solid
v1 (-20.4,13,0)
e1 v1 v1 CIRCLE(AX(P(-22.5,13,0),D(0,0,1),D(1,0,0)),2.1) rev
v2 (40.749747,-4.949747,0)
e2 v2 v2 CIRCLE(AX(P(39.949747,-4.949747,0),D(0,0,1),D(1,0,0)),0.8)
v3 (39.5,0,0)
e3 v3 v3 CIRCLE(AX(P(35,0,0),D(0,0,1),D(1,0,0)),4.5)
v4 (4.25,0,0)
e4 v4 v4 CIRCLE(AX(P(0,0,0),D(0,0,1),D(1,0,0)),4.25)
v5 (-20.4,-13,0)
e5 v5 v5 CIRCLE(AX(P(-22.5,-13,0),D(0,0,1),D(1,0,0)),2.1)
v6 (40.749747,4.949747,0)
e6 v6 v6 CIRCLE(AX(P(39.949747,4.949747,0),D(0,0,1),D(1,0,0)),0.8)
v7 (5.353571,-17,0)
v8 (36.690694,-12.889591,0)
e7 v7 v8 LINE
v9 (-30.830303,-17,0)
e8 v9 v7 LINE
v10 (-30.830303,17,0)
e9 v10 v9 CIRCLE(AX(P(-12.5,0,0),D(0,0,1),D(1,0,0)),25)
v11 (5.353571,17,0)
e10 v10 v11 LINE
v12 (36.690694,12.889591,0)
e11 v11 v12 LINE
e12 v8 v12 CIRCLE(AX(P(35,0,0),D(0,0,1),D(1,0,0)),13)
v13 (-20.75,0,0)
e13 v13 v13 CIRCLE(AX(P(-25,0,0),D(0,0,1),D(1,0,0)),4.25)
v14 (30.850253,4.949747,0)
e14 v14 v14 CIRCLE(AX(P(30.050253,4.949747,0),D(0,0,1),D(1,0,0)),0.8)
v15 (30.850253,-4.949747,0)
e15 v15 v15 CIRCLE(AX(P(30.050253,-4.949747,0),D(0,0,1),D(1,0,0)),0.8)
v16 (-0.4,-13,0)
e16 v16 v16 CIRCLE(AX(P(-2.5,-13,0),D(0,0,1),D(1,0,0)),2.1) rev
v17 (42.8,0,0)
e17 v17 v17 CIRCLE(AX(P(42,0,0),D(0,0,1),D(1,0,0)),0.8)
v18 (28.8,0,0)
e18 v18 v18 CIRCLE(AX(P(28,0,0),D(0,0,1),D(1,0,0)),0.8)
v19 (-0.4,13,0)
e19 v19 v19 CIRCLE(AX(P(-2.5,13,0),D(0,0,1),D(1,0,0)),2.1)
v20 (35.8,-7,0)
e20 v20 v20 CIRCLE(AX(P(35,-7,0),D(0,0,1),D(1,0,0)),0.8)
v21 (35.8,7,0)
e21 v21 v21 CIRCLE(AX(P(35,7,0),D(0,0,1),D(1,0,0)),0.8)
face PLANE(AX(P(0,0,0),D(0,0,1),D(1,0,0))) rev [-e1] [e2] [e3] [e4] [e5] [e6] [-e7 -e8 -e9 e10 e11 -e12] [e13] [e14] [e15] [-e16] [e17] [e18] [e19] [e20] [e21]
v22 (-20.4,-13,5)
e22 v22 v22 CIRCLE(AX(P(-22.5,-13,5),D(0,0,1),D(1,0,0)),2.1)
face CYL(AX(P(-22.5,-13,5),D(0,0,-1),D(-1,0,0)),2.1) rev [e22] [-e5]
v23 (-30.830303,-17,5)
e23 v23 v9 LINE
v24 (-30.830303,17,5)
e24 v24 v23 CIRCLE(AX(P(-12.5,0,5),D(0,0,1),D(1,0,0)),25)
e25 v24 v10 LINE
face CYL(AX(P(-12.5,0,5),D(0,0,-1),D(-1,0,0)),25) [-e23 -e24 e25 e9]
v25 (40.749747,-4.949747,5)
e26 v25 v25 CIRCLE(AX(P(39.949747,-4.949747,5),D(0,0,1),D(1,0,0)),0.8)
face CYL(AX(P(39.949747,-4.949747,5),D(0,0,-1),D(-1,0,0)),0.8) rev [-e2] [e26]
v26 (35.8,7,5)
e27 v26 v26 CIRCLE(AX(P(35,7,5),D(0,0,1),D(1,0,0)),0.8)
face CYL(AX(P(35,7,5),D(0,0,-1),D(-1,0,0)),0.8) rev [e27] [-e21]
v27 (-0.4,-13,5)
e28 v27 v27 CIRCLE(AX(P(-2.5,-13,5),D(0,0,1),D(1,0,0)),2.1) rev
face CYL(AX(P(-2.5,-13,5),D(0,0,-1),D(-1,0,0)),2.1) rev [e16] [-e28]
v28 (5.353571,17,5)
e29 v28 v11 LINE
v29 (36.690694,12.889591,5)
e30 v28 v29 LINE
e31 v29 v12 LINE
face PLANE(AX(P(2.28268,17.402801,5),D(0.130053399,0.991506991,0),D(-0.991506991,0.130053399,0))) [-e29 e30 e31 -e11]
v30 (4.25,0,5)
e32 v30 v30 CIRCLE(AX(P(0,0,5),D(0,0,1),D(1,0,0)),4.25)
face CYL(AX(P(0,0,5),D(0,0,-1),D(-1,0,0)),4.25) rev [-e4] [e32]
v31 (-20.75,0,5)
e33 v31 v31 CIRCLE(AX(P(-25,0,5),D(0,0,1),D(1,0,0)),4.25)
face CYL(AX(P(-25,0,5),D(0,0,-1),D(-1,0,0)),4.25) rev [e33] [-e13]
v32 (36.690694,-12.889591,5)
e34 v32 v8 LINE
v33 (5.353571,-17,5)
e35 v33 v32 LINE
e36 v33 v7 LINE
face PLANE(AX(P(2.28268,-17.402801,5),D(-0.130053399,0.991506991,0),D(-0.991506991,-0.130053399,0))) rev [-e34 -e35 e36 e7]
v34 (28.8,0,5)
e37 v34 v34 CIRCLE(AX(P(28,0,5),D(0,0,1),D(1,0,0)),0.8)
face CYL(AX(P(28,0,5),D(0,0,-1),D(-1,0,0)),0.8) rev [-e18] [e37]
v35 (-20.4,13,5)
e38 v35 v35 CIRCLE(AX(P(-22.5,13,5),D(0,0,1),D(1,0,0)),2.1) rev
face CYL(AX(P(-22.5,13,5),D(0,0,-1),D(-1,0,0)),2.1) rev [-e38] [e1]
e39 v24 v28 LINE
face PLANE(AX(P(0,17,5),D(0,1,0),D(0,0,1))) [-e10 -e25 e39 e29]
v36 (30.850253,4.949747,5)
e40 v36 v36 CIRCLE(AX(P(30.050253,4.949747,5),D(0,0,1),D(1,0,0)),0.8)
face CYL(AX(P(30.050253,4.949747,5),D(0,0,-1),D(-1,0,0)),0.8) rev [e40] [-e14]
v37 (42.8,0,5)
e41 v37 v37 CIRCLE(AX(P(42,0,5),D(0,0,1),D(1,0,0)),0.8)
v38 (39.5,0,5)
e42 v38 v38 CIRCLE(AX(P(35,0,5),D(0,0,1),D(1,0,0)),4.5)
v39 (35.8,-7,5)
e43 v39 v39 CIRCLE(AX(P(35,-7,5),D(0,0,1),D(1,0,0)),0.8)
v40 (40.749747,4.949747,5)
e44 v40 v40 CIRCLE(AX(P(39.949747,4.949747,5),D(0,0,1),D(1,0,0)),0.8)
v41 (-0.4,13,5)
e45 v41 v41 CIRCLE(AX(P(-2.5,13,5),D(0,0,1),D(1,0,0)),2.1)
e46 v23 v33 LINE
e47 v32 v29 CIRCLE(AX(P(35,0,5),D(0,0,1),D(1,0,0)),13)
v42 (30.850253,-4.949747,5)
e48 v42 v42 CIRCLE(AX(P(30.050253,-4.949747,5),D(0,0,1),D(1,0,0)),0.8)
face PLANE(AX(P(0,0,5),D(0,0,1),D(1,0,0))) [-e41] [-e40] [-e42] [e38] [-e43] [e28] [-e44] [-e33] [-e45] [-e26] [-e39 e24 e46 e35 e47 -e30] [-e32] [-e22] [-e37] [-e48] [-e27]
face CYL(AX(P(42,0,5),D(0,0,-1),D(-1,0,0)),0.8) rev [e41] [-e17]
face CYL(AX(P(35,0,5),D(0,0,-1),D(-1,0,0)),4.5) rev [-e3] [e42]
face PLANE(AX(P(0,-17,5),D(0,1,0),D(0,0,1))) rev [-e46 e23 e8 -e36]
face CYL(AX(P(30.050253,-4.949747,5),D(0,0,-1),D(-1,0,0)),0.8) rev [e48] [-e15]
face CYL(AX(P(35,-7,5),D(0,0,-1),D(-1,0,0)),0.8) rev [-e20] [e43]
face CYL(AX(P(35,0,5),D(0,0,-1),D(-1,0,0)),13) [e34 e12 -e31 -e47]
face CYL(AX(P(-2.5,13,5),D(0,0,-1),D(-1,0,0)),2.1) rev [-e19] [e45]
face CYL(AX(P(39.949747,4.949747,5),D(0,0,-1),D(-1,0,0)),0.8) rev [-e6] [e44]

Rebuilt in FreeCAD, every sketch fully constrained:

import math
import FreeCAD as App
import Part
import Sketcher
from FreeCAD import Vector

doc = App.newDocument("Part")
body = doc.addObject("PartDesign::Body", "Body")

# Sketch on XY plane
sketch1 = body.newObject("Sketcher::SketchObject", "Sketch")
sketch1.AttachmentSupport = (doc.getObject("XY_Plane"), [""])
sketch1.MapMode = "FlatFace"
sketch1.addGeometry(Part.LineSegment(Vector(5.353571, -17, 0), Vector(36.690694, -12.889591, 0)), False)
sketch1.addGeometry(Part.ArcOfCircle(Part.Circle(Vector(35, 0, 0), Vector(0, 0, 1), 13), math.radians(-82.527322), math.radians(82.527322)), False)
sketch1.addGeometry(Part.LineSegment(Vector(36.690694, 12.889591, 0), Vector(5.353571, 17, 0)), False)
sketch1.addGeometry(Part.LineSegment(Vector(5.353571, 17, 0), Vector(-30.830303, 17, 0)), False)
sketch1.addGeometry(Part.ArcOfCircle(Part.Circle(Vector(-12.5, 0, 0), Vector(0, 0, 1), 25), math.radians(137.156357), math.radians(222.843643)), False)
sketch1.addGeometry(Part.LineSegment(Vector(-30.830303, -17, 0), Vector(5.353571, -17, 0)), False)
sketch1.addGeometry(Part.Circle(Vector(-22.5, -13, 0), Vector(0, 0, 1), 2.1), False)
sketch1.addGeometry(Part.Circle(Vector(-2.5, -13, 0), Vector(0, 0, 1), 2.1), False)
sketch1.addGeometry(Part.Circle(Vector(-25, 0, 0), Vector(0, 0, 1), 4.25), False)
sketch1.addGeometry(Part.Circle(Vector(0, 0, 0), Vector(0, 0, 1), 4.25), False)
sketch1.addGeometry(Part.Circle(Vector(-22.5, 13, 0), Vector(0, 0, 1), 2.1), False)
sketch1.addGeometry(Part.Circle(Vector(-2.5, 13, 0), Vector(0, 0, 1), 2.1), False)
sketch1.addGeometry(Part.Circle(Vector(35, 7, 0), Vector(0, 0, 1), 0.8), False)
sketch1.addGeometry(Part.Circle(Vector(39.949747, 4.949747, 0), Vector(0, 0, 1), 0.8), False)
sketch1.addGeometry(Part.Circle(Vector(30.050253, -4.949747, 0), Vector(0, 0, 1), 0.8), False)
sketch1.addGeometry(Part.Circle(Vector(35, -7, 0), Vector(0, 0, 1), 0.8), False)
sketch1.addGeometry(Part.Circle(Vector(39.949747, -4.949747, 0), Vector(0, 0, 1), 0.8), False)
sketch1.addGeometry(Part.Circle(Vector(42, 0, 0), Vector(0, 0, 1), 0.8), False)
sketch1.addGeometry(Part.Circle(Vector(28, 0, 0), Vector(0, 0, 1), 0.8), False)
sketch1.addGeometry(Part.Circle(Vector(30.050253, 4.949747, 0), Vector(0, 0, 1), 0.8), False)
sketch1.addGeometry(Part.Circle(Vector(35, 0, 0), Vector(0, 0, 1), 4.5), False)
sketch1.addConstraint(Sketcher.Constraint("Tangent", 0, 2, 1, 1))
sketch1.addConstraint(Sketcher.Constraint("Tangent", 1, 2, 2, 1))
sketch1.addConstraint(Sketcher.Constraint("Coincident", 2, 2, 3, 1))
sketch1.addConstraint(Sketcher.Constraint("Coincident", 3, 2, 4, 1))
sketch1.addConstraint(Sketcher.Constraint("Coincident", 4, 2, 5, 1))
sketch1.addConstraint(Sketcher.Constraint("Coincident", 5, 2, 0, 1))
sketch1.addConstraint(Sketcher.Constraint("Horizontal", 3))
sketch1.addConstraint(Sketcher.Constraint("Horizontal", 5))
sketch1.addConstraint(Sketcher.Constraint("Coincident", 9, 3, -1, 1))
sketch1.addConstraint(Sketcher.Constraint("Coincident", 20, 3, 1, 3))
sketch1.addConstraint(Sketcher.Constraint("Equal", 6, 7))
sketch1.addConstraint(Sketcher.Constraint("Equal", 8, 9))
sketch1.addConstraint(Sketcher.Constraint("Equal", 7, 10))
sketch1.addConstraint(Sketcher.Constraint("Equal", 10, 11))
sketch1.addConstraint(Sketcher.Constraint("Equal", 12, 13))
sketch1.addConstraint(Sketcher.Constraint("Equal", 13, 14))
sketch1.addConstraint(Sketcher.Constraint("Equal", 14, 15))
sketch1.addConstraint(Sketcher.Constraint("Equal", 15, 16))
sketch1.addConstraint(Sketcher.Constraint("Equal", 16, 17))
sketch1.addConstraint(Sketcher.Constraint("Equal", 17, 18))
sketch1.addConstraint(Sketcher.Constraint("Equal", 18, 19))
sketch1.addConstraint(Sketcher.Constraint("Symmetric", 6, 3, 10, 3, -1))
sketch1.addConstraint(Sketcher.Constraint("Symmetric", 7, 3, 11, 3, -1))
sketch1.addConstraint(Sketcher.Constraint("Symmetric", 12, 3, 15, 3, -1))
sketch1.addConstraint(Sketcher.Constraint("Symmetric", 13, 3, 16, 3, -1))
sketch1.addConstraint(Sketcher.Constraint("Symmetric", 14, 3, 19, 3, -1))
sketch1.addConstraint(Sketcher.Constraint("Symmetric", 0, 2, 1, 2, -1))
sketch1.addConstraint(Sketcher.Constraint("Symmetric", 3, 2, 4, 2, -1))
sketch1.addConstraint(Sketcher.Constraint("PointOnObject", 8, 3, -1))
sketch1.addConstraint(Sketcher.Constraint("PointOnObject", 17, 3, -1))
sketch1.addConstraint(Sketcher.Constraint("PointOnObject", 18, 3, -1))
sketch1.addConstraint(Sketcher.Constraint("Horizontal", 6, 3, 7, 3))
sketch1.addConstraint(Sketcher.Constraint("Horizontal", 14, 3, 16, 3))
sketch1.addConstraint(Sketcher.Constraint("Vertical", 1, 3, 12, 3))
sketch1.addConstraint(Sketcher.Constraint("Diameter", 20, 9.0))
sketch1.addConstraint(Sketcher.Constraint("Radius", 1, 13.0))
sketch1.addConstraint(Sketcher.Constraint("Radius", 4, 25.0))
sketch1.addConstraint(Sketcher.Constraint("Diameter", 6, 4.2))
sketch1.addConstraint(Sketcher.Constraint("Diameter", 8, 8.5))
sketch1.addConstraint(Sketcher.Constraint("Diameter", 12, 1.6))
sketch1.addConstraint(Sketcher.Constraint("DistanceX", -1, 1, 1, 3, 35.0))
sketch1.addConstraint(Sketcher.Constraint("DistanceY", 6, 3, -1, 1, 13.0))
sketch1.addConstraint(Sketcher.Constraint("DistanceX", 8, 3, -1, 1, 25.0))
sketch1.addConstraint(Sketcher.Constraint("DistanceY", -1, 1, 12, 3, 7.0))
sketch1.addConstraint(Sketcher.Constraint("DistanceX", -1, 1, 17, 3, 42.0))
sketch1.addConstraint(Sketcher.Constraint("DistanceX", -1, 1, 18, 3, 28.0))
sketch1.addConstraint(Sketcher.Constraint("DistanceY", -1, 1, 2, 2, 17.0))
sketch1.addConstraint(Sketcher.Constraint("DistanceX", 6, 3, 4, 3, 10.0))
sketch1.addConstraint(Sketcher.Constraint("DistanceX", 4, 3, 7, 3, 10.0))
sketch1.addConstraint(Sketcher.Constraint("DistanceX", 4, 3, -1, 1, 12.5))
sketch1.addConstraint(Sketcher.Constraint("Distance", 0, 31.605549))
sketch1.addConstraint(Sketcher.Constraint("DistanceX", 14, 3, 0, 2, 6.640442))
sketch1.addConstraint(Sketcher.Constraint("DistanceX", -1, 1, 13, 3, 39.949747))
sketch1.addConstraint(Sketcher.Constraint("DistanceY", -1, 1, 13, 3, 4.949747))
pad1 = body.newObject("PartDesign::Pad", "Pad")
pad1.Profile = sketch1
pad1.Length = 5

doc.recompute()
